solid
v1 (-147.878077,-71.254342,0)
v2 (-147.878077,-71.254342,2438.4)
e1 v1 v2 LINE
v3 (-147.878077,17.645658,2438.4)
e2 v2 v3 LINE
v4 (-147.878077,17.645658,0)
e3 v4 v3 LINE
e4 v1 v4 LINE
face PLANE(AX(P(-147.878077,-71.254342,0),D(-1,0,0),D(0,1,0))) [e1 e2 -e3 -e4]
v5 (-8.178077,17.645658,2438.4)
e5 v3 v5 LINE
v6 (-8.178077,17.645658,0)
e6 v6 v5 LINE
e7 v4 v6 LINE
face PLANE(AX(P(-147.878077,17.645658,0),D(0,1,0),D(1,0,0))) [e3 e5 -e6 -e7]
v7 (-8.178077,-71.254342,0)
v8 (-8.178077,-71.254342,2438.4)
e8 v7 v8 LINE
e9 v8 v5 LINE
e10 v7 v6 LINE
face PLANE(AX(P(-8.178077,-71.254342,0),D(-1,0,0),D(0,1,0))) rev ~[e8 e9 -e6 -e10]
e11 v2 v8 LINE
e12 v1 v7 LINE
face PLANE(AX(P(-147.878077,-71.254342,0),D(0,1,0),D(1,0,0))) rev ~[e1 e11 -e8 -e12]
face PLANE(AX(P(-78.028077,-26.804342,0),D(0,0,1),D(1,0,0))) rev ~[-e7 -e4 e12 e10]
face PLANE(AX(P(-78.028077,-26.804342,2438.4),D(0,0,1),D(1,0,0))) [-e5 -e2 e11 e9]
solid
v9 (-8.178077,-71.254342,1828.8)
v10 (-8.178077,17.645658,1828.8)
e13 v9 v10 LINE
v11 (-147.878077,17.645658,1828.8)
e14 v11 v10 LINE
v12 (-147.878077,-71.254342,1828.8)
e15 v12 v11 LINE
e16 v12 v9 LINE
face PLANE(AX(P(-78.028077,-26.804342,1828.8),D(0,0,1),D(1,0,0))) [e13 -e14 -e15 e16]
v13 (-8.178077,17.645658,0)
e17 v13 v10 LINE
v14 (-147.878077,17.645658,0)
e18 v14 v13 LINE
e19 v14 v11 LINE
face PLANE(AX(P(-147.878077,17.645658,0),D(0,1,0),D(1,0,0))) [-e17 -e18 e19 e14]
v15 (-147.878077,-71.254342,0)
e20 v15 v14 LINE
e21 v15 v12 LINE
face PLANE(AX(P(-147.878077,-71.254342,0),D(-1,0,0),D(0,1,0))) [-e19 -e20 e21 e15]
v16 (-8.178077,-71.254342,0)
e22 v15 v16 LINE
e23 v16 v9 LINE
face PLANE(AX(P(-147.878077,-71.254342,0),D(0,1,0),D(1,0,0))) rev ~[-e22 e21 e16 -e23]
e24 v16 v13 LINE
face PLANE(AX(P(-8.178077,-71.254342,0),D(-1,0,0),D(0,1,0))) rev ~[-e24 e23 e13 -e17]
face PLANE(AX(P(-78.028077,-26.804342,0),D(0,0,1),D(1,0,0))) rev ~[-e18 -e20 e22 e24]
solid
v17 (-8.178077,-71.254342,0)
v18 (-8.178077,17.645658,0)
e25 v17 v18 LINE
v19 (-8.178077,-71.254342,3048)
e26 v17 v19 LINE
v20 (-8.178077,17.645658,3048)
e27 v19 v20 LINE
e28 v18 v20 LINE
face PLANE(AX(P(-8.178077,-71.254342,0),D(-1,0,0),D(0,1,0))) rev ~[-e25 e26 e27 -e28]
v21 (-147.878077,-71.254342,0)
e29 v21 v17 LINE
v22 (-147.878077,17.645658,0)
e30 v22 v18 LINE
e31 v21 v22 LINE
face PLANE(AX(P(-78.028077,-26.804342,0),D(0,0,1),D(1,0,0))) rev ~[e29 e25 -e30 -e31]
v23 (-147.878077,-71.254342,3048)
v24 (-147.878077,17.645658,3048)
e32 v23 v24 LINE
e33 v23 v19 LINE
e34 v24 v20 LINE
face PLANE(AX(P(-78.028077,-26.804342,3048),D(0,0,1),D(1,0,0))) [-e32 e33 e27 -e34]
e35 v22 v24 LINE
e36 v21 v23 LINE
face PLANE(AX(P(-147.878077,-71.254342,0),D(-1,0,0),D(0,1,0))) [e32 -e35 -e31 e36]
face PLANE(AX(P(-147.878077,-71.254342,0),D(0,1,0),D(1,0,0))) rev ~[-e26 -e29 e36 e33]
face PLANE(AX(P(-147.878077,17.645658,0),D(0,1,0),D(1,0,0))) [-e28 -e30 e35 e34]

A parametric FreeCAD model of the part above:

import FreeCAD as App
import Part
import Sketcher
from FreeCAD import Vector
Q = App.Units.Quantity

doc = App.newDocument("Part")
body = doc.addObject("PartDesign::Body", "Body")

sketch1 = body.newObject("Sketcher::SketchObject", "Sketch")
sketch1.AttachmentSupport = (doc.getObject("XY_Plane"), [""])
sketch1.MapMode = "FlatFace"
sketch1.addGeometry([
    Part.LineSegment(Vector(-148, 18, 0), Vector(-148, -71, 0)),
    Part.LineSegment(Vector(-148, -71, 0), Vector(-8, -71, 0)),
    Part.LineSegment(Vector(-8, -71, 0), Vector(-8, 18, 0)),
    Part.LineSegment(Vector(-8, 18, 0), Vector(-148, 18, 0)),
], False)
sketch1.addConstraint([
    Sketcher.Constraint("Coincident", 0, 2, 1, 1),
    Sketcher.Constraint("Coincident", 1, 2, 2, 1),
    Sketcher.Constraint("Coincident", 2, 2, 3, 1),
    Sketcher.Constraint("Coincident", 3, 2, 0, 1),
    Sketcher.Constraint("Vertical", 0),
    Sketcher.Constraint("Horizontal", 1),
    Sketcher.Constraint("Vertical", 2),
    Sketcher.Constraint("Horizontal", 3),
    Sketcher.Constraint("DistanceX", 1, 1, 1, 2, Q("5.5 in")),
    Sketcher.Constraint("DistanceY", 0, 2, 0, 1, Q("3.5 in")),
    Sketcher.Constraint("DistanceY", 0, 2, -1, 1, 71.254342),
    Sketcher.Constraint("DistanceX", 0, 2, -1, 1, 147.878077),
])
pad1 = body.newObject("PartDesign::Pad", "Pad")
pad1.Profile = sketch1
pad1.Length = Q("72 in")
body2 = doc.addObject("PartDesign::Body", "Body001")

sketch2 = body2.newObject("Sketcher::SketchObject", "Sketch001")
sketch2.AttachmentSupport = (doc.getObject("XY_Plane001"), [""])
sketch2.MapMode = "FlatFace"
sketch2.addGeometry([
    Part.LineSegment(Vector(-148, 18, 0), Vector(-148, -71, 0)),
    Part.LineSegment(Vector(-148, -71, 0), Vector(-8, -71, 0)),
    Part.LineSegment(Vector(-8, -71, 0), Vector(-8, 18, 0)),
    Part.LineSegment(Vector(-8, 18, 0), Vector(-148, 18, 0)),
], False)
sketch2.addConstraint([
    Sketcher.Constraint("Coincident", 0, 2, 1, 1),
    Sketcher.Constraint("Coincident", 1, 2, 2, 1),
    Sketcher.Constraint("Coincident", 2, 2, 3, 1),
    Sketcher.Constraint("Coincident", 3, 2, 0, 1),
    Sketcher.Constraint("Vertical", 0),
    Sketcher.Constraint("Horizontal", 1),
    Sketcher.Constraint("Vertical", 2),
    Sketcher.Constraint("Horizontal", 3),
    Sketcher.Constraint("DistanceX", 1, 1, 1, 2, Q("5.5 in")),
    Sketcher.Constraint("DistanceY", 0, 2, 0, 1, Q("3.5 in")),
    Sketcher.Constraint("DistanceY", 0, 2, -1, 1, 71.254342),
    Sketcher.Constraint("DistanceX", 0, 2, -1, 1, 147.878077),
])
pad2 = body2.newObject("PartDesign::Pad", "Pad001")
pad2.Profile = sketch2
pad2.Length = Q("96 in")
body3 = doc.addObject("PartDesign::Body", "Body002")

sketch3 = body3.newObject("Sketcher::SketchObject", "Sketch002")
sketch3.AttachmentSupport = (doc.getObject("XY_Plane002"), [""])
sketch3.MapMode = "FlatFace"
sketch3.addGeometry([
    Part.LineSegment(Vector(-148, 18, 0), Vector(-148, -71, 0)),
    Part.LineSegment(Vector(-148, -71, 0), Vector(-8, -71, 0)),
    Part.LineSegment(Vector(-8, -71, 0), Vector(-8, 18, 0)),
    Part.LineSegment(Vector(-8, 18, 0), Vector(-148, 18, 0)),
], False)
sketch3.addConstraint([
    Sketcher.Constraint("Coincident", 0, 2, 1, 1),
    Sketcher.Constraint("Coincident", 1, 2, 2, 1),
    Sketcher.Constraint("Coincident", 2, 2, 3, 1),
    Sketcher.Constraint("Coincident", 3, 2, 0, 1),
    Sketcher.Constraint("Vertical", 0),
    Sketcher.Constraint("Horizontal", 1),
    Sketcher.Constraint("Vertical", 2),
    Sketcher.Constraint("Horizontal", 3),
    Sketcher.Constraint("DistanceX", 1, 1, 1, 2, Q("5.5 in")),
    Sketcher.Constraint("DistanceY", 0, 2, 0, 1, Q("3.5 in")),
    Sketcher.Constraint("DistanceY", 0, 2, -1, 1, 71.254342),
    Sketcher.Constraint("DistanceX", 0, 2, -1, 1, 147.878077),
])
pad3 = body3.newObject("PartDesign::Pad", "Pad002")
pad3.Profile = sketch3
pad3.Length = Q("120 in")

doc.recompute()
